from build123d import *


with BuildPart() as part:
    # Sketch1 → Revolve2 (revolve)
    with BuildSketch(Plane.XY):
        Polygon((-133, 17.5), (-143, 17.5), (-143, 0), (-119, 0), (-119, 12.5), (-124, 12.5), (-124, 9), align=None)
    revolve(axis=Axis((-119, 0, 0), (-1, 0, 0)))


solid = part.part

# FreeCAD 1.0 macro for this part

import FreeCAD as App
import Part
import Sketcher

V = App.Vector
Q = App.Units.Quantity

doc = App.newDocument("Part")
params = doc.addObject("Spreadsheet::Sheet", "Params")
for row, (alias, value) in enumerate([
    ("sketch1_width", "10 mm"),
    ("sketch1_width2", "24 mm"),
    ("sketch1_width3", "5 mm"),
    ("sketch1_height", "17.5 mm"),
    ("sketch1_height2", "12.5 mm"),
    ("revolution_angle", "360 deg"),
], start=1):
    params.set(f"A{row}", alias)
    params.set(f"B{row}", "=" + value)
    params.setAlias(f"B{row}", alias)

body = doc.addObject("PartDesign::Body", "Body")

# Sketch on XY plane
sketch1 = body.newObject("Sketcher::SketchObject", "Sketch")
sketch1.AttachmentSupport = (doc.getObject("XY_Plane"), [""])
sketch1.MapMode = "FlatFace"
sketch1.addGeometry([
    Part.LineSegment(V(-133, 17.5, 0), V(-143, 17.5, 0)),  # 0
    Part.LineSegment(V(-143, 17.5, 0), V(-143, 0, 0)),  # 1
    Part.LineSegment(V(-143, 0, 0), V(-119, 0, 0)),  # 2
    Part.LineSegment(V(-119, 0, 0), V(-119, 12.5, 0)),  # 3
    Part.LineSegment(V(-119, 12.5, 0), V(-124, 12.5, 0)),  # 4
    Part.LineSegment(V(-124, 12.5, 0), V(-124, 9, 0)),  # 5
    Part.LineSegment(V(-124, 9, 0), V(-133, 17.5, 0)),  # 6
], False)
sketch1.addConstraint([
    Sketcher.Constraint("Coincident", 0, 2, 1, 1),
    Sketcher.Constraint("Coincident", 1, 2, 2, 1),
    Sketcher.Constraint("Coincident", 2, 2, 3, 1),
    Sketcher.Constraint("Coincident", 3, 2, 4, 1),
    Sketcher.Constraint("Coincident", 4, 2, 5, 1),
    Sketcher.Constraint("Coincident", 5, 2, 6, 1),
    Sketcher.Constraint("Coincident", 6, 2, 0, 1),
    Sketcher.Constraint("Horizontal", 0),
    Sketcher.Constraint("Vertical", 1),
    Sketcher.Constraint("Horizontal", 2),
    Sketcher.Constraint("Vertical", 3),
    Sketcher.Constraint("Horizontal", 4),
    Sketcher.Constraint("Vertical", 5),
    Sketcher.Constraint("PointOnObject", 1, 2, -1),
    Sketcher.Constraint("DistanceX", 0, 2, 0, 1, Q("10 mm")),
    Sketcher.Constraint("DistanceX", 2, 1, 2, 2, Q("24 mm")),
    Sketcher.Constraint("DistanceX", 4, 2, 4, 1, Q("5 mm")),
    Sketcher.Constraint("DistanceY", 1, 2, 1, 1, Q("17.5 mm")),
    Sketcher.Constraint("DistanceY", 3, 1, 3, 2, Q("12.5 mm")),
    Sketcher.Constraint("DistanceY", 5, 2, 5, 1, Q("3.5 mm")),
    Sketcher.Constraint("DistanceX", 0, 2, -1, 1, Q("143 mm")),
])
sketch1.setExpression("Constraints[14]", "Params.sketch1_width")
sketch1.setExpression("Constraints[15]", "Params.sketch1_width2")
sketch1.setExpression("Constraints[16]", "Params.sketch1_width3")
sketch1.setExpression("Constraints[17]", "Params.sketch1_height")
sketch1.setExpression("Constraints[18]", "Params.sketch1_height2")
revolution = body.newObject("PartDesign::Revolution", "Revolution")
revolution.Profile = sketch1
revolution.ReferenceAxis = (sketch1, ["H_Axis"])
revolution.setExpression("Angle", "Params.revolution_angle")

doc.recompute()
